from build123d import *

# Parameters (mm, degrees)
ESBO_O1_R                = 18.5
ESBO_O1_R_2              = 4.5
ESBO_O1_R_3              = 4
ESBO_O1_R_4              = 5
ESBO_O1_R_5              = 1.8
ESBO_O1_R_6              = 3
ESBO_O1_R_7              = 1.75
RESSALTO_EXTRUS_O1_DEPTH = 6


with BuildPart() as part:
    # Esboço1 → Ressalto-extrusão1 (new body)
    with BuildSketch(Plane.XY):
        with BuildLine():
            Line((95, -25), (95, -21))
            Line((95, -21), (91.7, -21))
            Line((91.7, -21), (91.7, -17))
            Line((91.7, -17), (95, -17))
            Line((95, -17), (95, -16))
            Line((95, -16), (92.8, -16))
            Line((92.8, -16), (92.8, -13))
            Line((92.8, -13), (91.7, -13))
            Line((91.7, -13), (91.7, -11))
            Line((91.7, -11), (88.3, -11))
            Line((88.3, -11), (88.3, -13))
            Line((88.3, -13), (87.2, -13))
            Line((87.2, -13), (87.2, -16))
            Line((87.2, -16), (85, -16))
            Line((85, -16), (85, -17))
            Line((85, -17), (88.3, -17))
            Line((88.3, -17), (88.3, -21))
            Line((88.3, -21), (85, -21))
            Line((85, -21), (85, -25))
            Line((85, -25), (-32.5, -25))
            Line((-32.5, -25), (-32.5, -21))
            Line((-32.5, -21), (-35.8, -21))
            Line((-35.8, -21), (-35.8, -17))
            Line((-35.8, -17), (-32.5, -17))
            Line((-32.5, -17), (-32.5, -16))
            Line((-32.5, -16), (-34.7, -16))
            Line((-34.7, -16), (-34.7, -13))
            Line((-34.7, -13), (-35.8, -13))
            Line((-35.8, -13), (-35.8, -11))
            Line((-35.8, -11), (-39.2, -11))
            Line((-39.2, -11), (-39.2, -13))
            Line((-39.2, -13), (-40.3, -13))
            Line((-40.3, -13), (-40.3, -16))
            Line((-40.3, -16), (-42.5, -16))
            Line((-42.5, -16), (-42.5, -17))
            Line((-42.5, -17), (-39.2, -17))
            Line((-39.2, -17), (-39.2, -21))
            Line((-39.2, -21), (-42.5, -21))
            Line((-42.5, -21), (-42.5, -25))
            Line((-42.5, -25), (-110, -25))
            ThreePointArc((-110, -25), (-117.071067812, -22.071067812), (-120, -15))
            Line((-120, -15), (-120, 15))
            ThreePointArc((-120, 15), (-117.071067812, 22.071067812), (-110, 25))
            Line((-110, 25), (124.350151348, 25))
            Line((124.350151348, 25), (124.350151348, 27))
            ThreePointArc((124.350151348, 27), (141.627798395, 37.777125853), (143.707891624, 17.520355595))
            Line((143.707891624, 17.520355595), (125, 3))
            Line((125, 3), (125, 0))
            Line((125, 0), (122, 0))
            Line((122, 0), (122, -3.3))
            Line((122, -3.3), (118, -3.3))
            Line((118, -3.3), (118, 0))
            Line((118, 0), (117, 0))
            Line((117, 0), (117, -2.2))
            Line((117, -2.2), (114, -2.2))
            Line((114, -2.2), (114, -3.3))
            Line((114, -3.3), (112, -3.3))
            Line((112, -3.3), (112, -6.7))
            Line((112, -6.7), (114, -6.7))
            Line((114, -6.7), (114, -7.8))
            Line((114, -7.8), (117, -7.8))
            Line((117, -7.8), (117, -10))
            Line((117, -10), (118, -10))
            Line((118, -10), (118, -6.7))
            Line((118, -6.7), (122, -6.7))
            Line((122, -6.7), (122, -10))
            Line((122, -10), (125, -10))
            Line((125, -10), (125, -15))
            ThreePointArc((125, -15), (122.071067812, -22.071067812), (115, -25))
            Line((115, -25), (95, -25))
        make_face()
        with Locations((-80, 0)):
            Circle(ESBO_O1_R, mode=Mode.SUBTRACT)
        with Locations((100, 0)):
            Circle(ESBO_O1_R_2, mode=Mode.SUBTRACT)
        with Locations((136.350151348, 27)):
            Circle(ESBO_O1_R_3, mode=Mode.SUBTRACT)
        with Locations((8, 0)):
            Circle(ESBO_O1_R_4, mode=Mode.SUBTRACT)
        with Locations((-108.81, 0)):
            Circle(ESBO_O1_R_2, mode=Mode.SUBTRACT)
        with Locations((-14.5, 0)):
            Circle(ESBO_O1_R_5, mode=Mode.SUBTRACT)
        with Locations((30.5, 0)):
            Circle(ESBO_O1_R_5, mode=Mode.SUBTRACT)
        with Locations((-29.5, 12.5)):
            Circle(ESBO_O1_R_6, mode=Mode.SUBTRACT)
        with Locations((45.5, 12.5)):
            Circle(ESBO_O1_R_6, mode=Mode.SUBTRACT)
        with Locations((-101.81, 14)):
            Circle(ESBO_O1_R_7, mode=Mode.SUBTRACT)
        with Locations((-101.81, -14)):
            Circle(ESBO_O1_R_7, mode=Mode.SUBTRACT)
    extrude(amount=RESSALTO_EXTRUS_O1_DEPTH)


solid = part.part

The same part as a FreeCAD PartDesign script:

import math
import FreeCAD as App
import Part
import Sketcher
from FreeCAD import Vector

doc = App.newDocument("Part")
params = doc.addObject("Spreadsheet::Sheet", "Params")
for row, (alias, value) in enumerate([
    ("sketch1_diameter", "9 mm"),
    ("sketch1_diameter2", "10 mm"),
    ("sketch1_diameter3", "37 mm"),
    ("sketch1_diameter4", "6 mm"),
    ("sketch1_diameter5", "8 mm"),
    ("pad1_length", "6 mm"),
], start=1):
    params.set(f"A{row}", alias)
    params.set(f"B{row}", "=" + value)
    params.setAlias(f"B{row}", alias)

body = doc.addObject("PartDesign::Body", "Body")

# Sketch on XY plane
sketch1 = body.newObject("Sketcher::SketchObject", "Sketch")
sketch1.AttachmentSupport = (doc.getObject("XY_Plane"), [""])
sketch1.MapMode = "FlatFace"
sketch1.addGeometry([
    Part.LineSegment(Vector(95, -21, 0), Vector(95, -25, 0)),  # 0
    Part.LineSegment(Vector(95, -25, 0), Vector(115, -25, 0)),  # 1
    Part.ArcOfCircle(Part.Circle(Vector(115, -15, 0), Vector(0, 0, 1), 10), math.radians(-90), math.radians(0)),  # 2
    Part.LineSegment(Vector(125, -15, 0), Vector(125, -10, 0)),  # 3
    Part.LineSegment(Vector(125, -10, 0), Vector(122, -10, 0)),  # 4
    Part.LineSegment(Vector(122, -10, 0), Vector(122, -6.7, 0)),  # 5
    Part.LineSegment(Vector(122, -6.7, 0), Vector(118, -6.7, 0)),  # 6
    Part.LineSegment(Vector(118, -6.7, 0), Vector(118, -10, 0)),  # 7
    Part.LineSegment(Vector(118, -10, 0), Vector(117, -10, 0)),  # 8
    Part.LineSegment(Vector(117, -10, 0), Vector(117, -7.8, 0)),  # 9
    Part.LineSegment(Vector(117, -7.8, 0), Vector(114, -7.8, 0)),  # 10
    Part.LineSegment(Vector(114, -7.8, 0), Vector(114, -6.7, 0)),  # 11
    Part.LineSegment(Vector(114, -6.7, 0), Vector(112, -6.7, 0)),  # 12
    Part.LineSegment(Vector(112, -6.7, 0), Vector(112, -3.3, 0)),  # 13
    Part.LineSegment(Vector(112, -3.3, 0), Vector(114, -3.3, 0)),  # 14
    Part.LineSegment(Vector(114, -3.3, 0), Vector(114, -2.2, 0)),  # 15
    Part.LineSegment(Vector(114, -2.2, 0), Vector(117, -2.2, 0)),  # 16
    Part.LineSegment(Vector(117, -2.2, 0), Vector(117, 0, 0)),  # 17
    Part.LineSegment(Vector(117, 0, 0), Vector(118, 0, 0)),  # 18
    Part.LineSegment(Vector(118, 0, 0), Vector(118, -3.3, 0)),  # 19
    Part.LineSegment(Vector(118, -3.3, 0), Vector(122, -3.3, 0)),  # 20
    Part.LineSegment(Vector(122, -3.3, 0), Vector(122, 0, 0)),  # 21
    Part.LineSegment(Vector(122, 0, 0), Vector(125, 0, 0)),  # 22
    Part.LineSegment(Vector(125, 0, 0), Vector(125, 3, 0)),  # 23
    Part.LineSegment(Vector(125, 3, 0), Vector(143.7, 17.5, 0)),  # 24
    Part.ArcOfCircle(Part.Circle(Vector(136.4, 27, 0), Vector(0, 0, 1), 12), math.radians(-52), math.radians(180)),  # 25
    Part.LineSegment(Vector(124.4, 27, 0), Vector(124.4, 25, 0)),  # 26
    Part.LineSegment(Vector(124.4, 25, 0), Vector(-110, 25, 0)),  # 27
    Part.ArcOfCircle(Part.Circle(Vector(-110, 15, 0), Vector(0, 0, 1), 10), math.radians(90), math.radians(180)),  # 28
    Part.LineSegment(Vector(-120, 15, 0), Vector(-120, -15, 0)),  # 29
    Part.ArcOfCircle(Part.Circle(Vector(-110, -15, 0), Vector(0, 0, 1), 10), math.radians(180), math.radians(270)),  # 30
    Part.LineSegment(Vector(-110, -25, 0), Vector(-42.5, -25, 0)),  # 31
    Part.LineSegment(Vector(-42.5, -25, 0), Vector(-42.5, -21, 0)),  # 32
    Part.LineSegment(Vector(-42.5, -21, 0), Vector(-39.2, -21, 0)),  # 33
    Part.LineSegment(Vector(-39.2, -21, 0), Vector(-39.2, -17, 0)),  # 34
    Part.LineSegment(Vector(-39.2, -17, 0), Vector(-42.5, -17, 0)),  # 35
    Part.LineSegment(Vector(-42.5, -17, 0), Vector(-42.5, -16, 0)),  # 36
    Part.LineSegment(Vector(-42.5, -16, 0), Vector(-40.3, -16, 0)),  # 37
    Part.LineSegment(Vector(-40.3, -16, 0), Vector(-40.3, -13, 0)),  # 38
    Part.LineSegment(Vector(-40.3, -13, 0), Vector(-39.2, -13, 0)),  # 39
    Part.LineSegment(Vector(-39.2, -13, 0), Vector(-39.2, -11, 0)),  # 40
    Part.LineSegment(Vector(-39.2, -11, 0), Vector(-35.8, -11, 0)),  # 41
    Part.LineSegment(Vector(-35.8, -11, 0), Vector(-35.8, -13, 0)),  # 42
    Part.LineSegment(Vector(-35.8, -13, 0), Vector(-34.7, -13, 0)),  # 43
    Part.LineSegment(Vector(-34.7, -13, 0), Vector(-34.7, -16, 0)),  # 44
    Part.LineSegment(Vector(-34.7, -16, 0), Vector(-32.5, -16, 0)),  # 45
    Part.LineSegment(Vector(-32.5, -16, 0), Vector(-32.5, -17, 0)),  # 46
    Part.LineSegment(Vector(-32.5, -17, 0), Vector(-35.8, -17, 0)),  # 47
    Part.LineSegment(Vector(-35.8, -17, 0), Vector(-35.8, -21, 0)),  # 48
    Part.LineSegment(Vector(-35.8, -21, 0), Vector(-32.5, -21, 0)),  # 49
    Part.LineSegment(Vector(-32.5, -21, 0), Vector(-32.5, -25, 0)),  # 50
    Part.LineSegment(Vector(-32.5, -25, 0), Vector(85, -25, 0)),  # 51
    Part.LineSegment(Vector(85, -25, 0), Vector(85, -21, 0)),  # 52
    Part.LineSegment(Vector(85, -21, 0), Vector(88.3, -21, 0)),  # 53
    Part.LineSegment(Vector(88.3, -21, 0), Vector(88.3, -17, 0)),  # 54
    Part.LineSegment(Vector(88.3, -17, 0), Vector(85, -17, 0)),  # 55
    Part.LineSegment(Vector(85, -17, 0), Vector(85, -16, 0)),  # 56
    Part.LineSegment(Vector(85, -16, 0), Vector(87.2, -16, 0)),  # 57
    Part.LineSegment(Vector(87.2, -16, 0), Vector(87.2, -13, 0)),  # 58
    Part.LineSegment(Vector(87.2, -13, 0), Vector(88.3, -13, 0)),  # 59
    Part.LineSegment(Vector(88.3, -13, 0), Vector(88.3, -11, 0)),  # 60
    Part.LineSegment(Vector(88.3, -11, 0), Vector(91.7, -11, 0)),  # 61
    Part.LineSegment(Vector(91.7, -11, 0), Vector(91.7, -13, 0)),  # 62
    Part.LineSegment(Vector(91.7, -13, 0), Vector(92.8, -13, 0)),  # 63
    Part.LineSegment(Vector(92.8, -13, 0), Vector(92.8, -16, 0)),  # 64
    Part.LineSegment(Vector(92.8, -16, 0), Vector(95, -16, 0)),  # 65
    Part.LineSegment(Vector(95, -16, 0), Vector(95, -17, 0)),  # 66
    Part.LineSegment(Vector(95, -17, 0), Vector(91.7, -17, 0)),  # 67
    Part.LineSegment(Vector(91.7, -17, 0), Vector(91.7, -21, 0)),  # 68
    Part.LineSegment(Vector(91.7, -21, 0), Vector(95, -21, 0)),  # 69
    Part.Circle(Vector(100, 0, 0), Vector(0, 0, 1), 4.5),  # 70
    Part.Circle(Vector(30.5, 0, 0), Vector(0, 0, 1), 1.8),  # 71
    Part.Circle(Vector(-101.8, -14, 0), Vector(0, 0, 1), 1.8),  # 72
    Part.Circle(Vector(8, 0, 0), Vector(0, 0, 1), 5),  # 73
    Part.Circle(Vector(-14.5, 0, 0), Vector(0, 0, 1), 1.8),  # 74
    Part.Circle(Vector(-80, 0, 0), Vector(0, 0, 1), 18.5),  # 75
    Part.Circle(Vector(-108.8, 0, 0), Vector(0, 0, 1), 4.5),  # 76
    Part.Circle(Vector(45.5, 12.5, 0), Vector(0, 0, 1), 3),  # 77
    Part.Circle(Vector(136.4, 27, 0), Vector(0, 0, 1), 4),  # 78
    Part.Circle(Vector(-29.5, 12.5, 0), Vector(0, 0, 1), 3),  # 79
    Part.Circle(Vector(-101.8, 14, 0), Vector(0, 0, 1), 1.8),  # 80
], False)
sketch1.addConstraint([
    Sketcher.Constraint("Coincident", 0, 2, 1, 1),
    Sketcher.Constraint("Tangent", 1, 2, 2, 1),
    Sketcher.Constraint("Tangent", 2, 2, 3, 1),
    Sketcher.Constraint("Coincident", 3, 2, 4, 1),
    Sketcher.Constraint("Coincident", 4, 2, 5, 1),
    Sketcher.Constraint("Coincident", 5, 2, 6, 1),
    Sketcher.Constraint("Coincident", 6, 2, 7, 1),
    Sketcher.Constraint("Coincident", 7, 2, 8, 1),
    Sketcher.Constraint("Coincident", 8, 2, 9, 1),
    Sketcher.Constraint("Coincident", 9, 2, 10, 1),
    Sketcher.Constraint("Coincident", 10, 2, 11, 1),
    Sketcher.Constraint("Coincident", 11, 2, 12, 1),
    Sketcher.Constraint("Coincident", 12, 2, 13, 1),
    Sketcher.Constraint("Coincident", 13, 2, 14, 1),
    Sketcher.Constraint("Coincident", 14, 2, 15, 1),
    Sketcher.Constraint("Coincident", 15, 2, 16, 1),
    Sketcher.Constraint("Coincident", 16, 2, 17, 1),
    Sketcher.Constraint("Coincident", 17, 2, 18, 1),
    Sketcher.Constraint("Coincident", 18, 2, 19, 1),
    Sketcher.Constraint("Coincident", 19, 2, 20, 1),
    Sketcher.Constraint("Coincident", 20, 2, 21, 1),
    Sketcher.Constraint("Coincident", 21, 2, 22, 1),
    Sketcher.Constraint("Coincident", 22, 2, 23, 1),
    Sketcher.Constraint("Coincident", 23, 2, 24, 1),
    Sketcher.Constraint("Tangent", 24, 2, 25, 1),
    Sketcher.Constraint("Tangent", 25, 2, 26, 1),
    Sketcher.Constraint("Coincident", 26, 2, 27, 1),
    Sketcher.Constraint("Tangent", 27, 2, 28, 1),
    Sketcher.Constraint("Tangent", 28, 2, 29, 1),
    Sketcher.Constraint("Tangent", 29, 2, 30, 1),
    Sketcher.Constraint("Tangent", 30, 2, 31, 1),
    Sketcher.Constraint("Coincident", 31, 2, 32, 1),
    Sketcher.Constraint("Coincident", 32, 2, 33, 1),
    Sketcher.Constraint("Coincident", 33, 2, 34, 1),
    Sketcher.Constraint("Coincident", 34, 2, 35, 1),
    Sketcher.Constraint("Coincident", 35, 2, 36, 1),
    Sketcher.Constraint("Coincident", 36, 2, 37, 1),
    Sketcher.Constraint("Coincident", 37, 2, 38, 1),
    Sketcher.Constraint("Coincident", 38, 2, 39, 1),
    Sketcher.Constraint("Coincident", 39, 2, 40, 1),
    Sketcher.Constraint("Coincident", 40, 2, 41, 1),
    Sketcher.Constraint("Coincident", 41, 2, 42, 1),
    Sketcher.Constraint("Coincident", 42, 2, 43, 1),
    Sketcher.Constraint("Coincident", 43, 2, 44, 1),
    Sketcher.Constraint("Coincident", 44, 2, 45, 1),
    Sketcher.Constraint("Coincident", 45, 2, 46, 1),
    Sketcher.Constraint("Coincident", 46, 2, 47, 1),
    Sketcher.Constraint("Coincident", 47, 2, 48, 1),
    Sketcher.Constraint("Coincident", 48, 2, 49, 1),
    Sketcher.Constraint("Coincident", 49, 2, 50, 1),
    Sketcher.Constraint("Coincident", 50, 2, 51, 1),
    Sketcher.Constraint("Coincident", 51, 2, 52, 1),
    Sketcher.Constraint("Coincident", 52, 2, 53, 1),
    Sketcher.Constraint("Coincident", 53, 2, 54, 1),
    Sketcher.Constraint("Coincident", 54, 2, 55, 1),
    Sketcher.Constraint("Coincident", 55, 2, 56, 1),
    Sketcher.Constraint("Coincident", 56, 2, 57, 1),
    Sketcher.Constraint("Coincident", 57, 2, 58, 1),
    Sketcher.Constraint("Coincident", 58, 2, 59, 1),
    Sketcher.Constraint("Coincident", 59, 2, 60, 1),
    Sketcher.Constraint("Coincident", 60, 2, 61, 1),
    Sketcher.Constraint("Coincident", 61, 2, 62, 1),
    Sketcher.Constraint("Coincident", 62, 2, 63, 1),
    Sketcher.Constraint("Coincident", 63, 2, 64, 1),
    Sketcher.Constraint("Coincident", 64, 2, 65, 1),
    Sketcher.Constraint("Coincident", 65, 2, 66, 1),
    Sketcher.Constraint("Coincident", 66, 2, 67, 1),
    Sketcher.Constraint("Coincident", 67, 2, 68, 1),
    Sketcher.Constraint("Coincident", 68, 2, 69, 1),
    Sketcher.Constraint("Coincident", 69, 2, 0, 1),
    Sketcher.Constraint("Vertical", 0),
    Sketcher.Constraint("Horizontal", 1),
    Sketcher.Constraint("Vertical", 3),
    Sketcher.Constraint("Horizontal", 4),
    Sketcher.Constraint("Vertical", 5),
    Sketcher.Constraint("Horizontal", 6),
    Sketcher.Constraint("Vertical", 7),
    Sketcher.Constraint("Horizontal", 8),
    Sketcher.Constraint("Vertical", 9),
    Sketcher.Constraint("Horizontal", 10),
    Sketcher.Constraint("Vertical", 11),
    Sketcher.Constraint("Horizontal", 12),
    Sketcher.Constraint("Vertical", 13),
    Sketcher.Constraint("Horizontal", 14),
    Sketcher.Constraint("Vertical", 15),
    Sketcher.Constraint("Horizontal", 16),
    Sketcher.Constraint("Vertical", 17),
    Sketcher.Constraint("Horizontal", 18),
    Sketcher.Constraint("Vertical", 19),
    Sketcher.Constraint("Horizontal", 20),
    Sketcher.Constraint("Vertical", 21),
    Sketcher.Constraint("Horizontal", 22),
    Sketcher.Constraint("Vertical", 23),
    Sketcher.Constraint("Vertical", 26),
    Sketcher.Constraint("Horizontal", 27),
    Sketcher.Constraint("Vertical", 29),
    Sketcher.Constraint("Horizontal", 31),
    Sketcher.Constraint("Vertical", 32),
    Sketcher.Constraint("Horizontal", 33),
    Sketcher.Constraint("Vertical", 34),
    Sketcher.Constraint("Horizontal", 35),
    Sketcher.Constraint("Vertical", 36),
    Sketcher.Constraint("Horizontal", 37),
    Sketcher.Constraint("Vertical", 38),
    Sketcher.Constraint("Horizontal", 39),
    Sketcher.Constraint("Vertical", 40),
    Sketcher.Constraint("Horizontal", 41),
    Sketcher.Constraint("Vertical", 42),
    Sketcher.Constraint("Horizontal", 43),
    Sketcher.Constraint("Vertical", 44),
    Sketcher.Constraint("Horizontal", 45),
    Sketcher.Constraint("Vertical", 46),
    Sketcher.Constraint("Horizontal", 47),
    Sketcher.Constraint("Vertical", 48),
    Sketcher.Constraint("Horizontal", 49),
    Sketcher.Constraint("Vertical", 50),
    Sketcher.Constraint("Horizontal", 51),
    Sketcher.Constraint("Vertical", 52),
    Sketcher.Constraint("Horizontal", 53),
    Sketcher.Constraint("Vertical", 54),
    Sketcher.Constraint("Horizontal", 55),
    Sketcher.Constraint("Vertical", 56),
    Sketcher.Constraint("Horizontal", 57),
    Sketcher.Constraint("Vertical", 58),
    Sketcher.Constraint("Horizontal", 59),
    Sketcher.Constraint("Vertical", 60),
    Sketcher.Constraint("Horizontal", 61),
    Sketcher.Constraint("Vertical", 62),
    Sketcher.Constraint("Horizontal", 63),
    Sketcher.Constraint("Vertical", 64),
    Sketcher.Constraint("Horizontal", 65),
    Sketcher.Constraint("Vertical", 66),
    Sketcher.Constraint("Horizontal", 67),
    Sketcher.Constraint("Vertical", 68),
    Sketcher.Constraint("Horizontal", 69),
    Sketcher.Constraint("Coincident", 78, 3, 25, 3),
    Sketcher.Constraint("Equal", 2, 28),
    Sketcher.Constraint("Equal", 28, 30),
    Sketcher.Constraint("Equal", 71, 74),
    Sketcher.Constraint("Equal", 70, 76),
    Sketcher.Constraint("Equal", 77, 79),
    Sketcher.Constraint("Equal", 72, 80),
    Sketcher.Constraint("Symmetric", 72, 3, 80, 3, -1),
    Sketcher.Constraint("PointOnObject", 70, 3, -1),
    Sketcher.Constraint("PointOnObject", 71, 3, -1),
    Sketcher.Constraint("PointOnObject", 73, 3, -1),
    Sketcher.Constraint("PointOnObject", 74, 3, -1),
    Sketcher.Constraint("PointOnObject", 75, 3, -1),
    Sketcher.Constraint("PointOnObject", 76, 3, -1),
    Sketcher.Constraint("PointOnObject", 17, 2, -1),
    Sketcher.Constraint("PointOnObject", 21, 2, -1),
    Sketcher.Constraint("Horizontal", 2, 3, 30, 3),
    Sketcher.Constraint("Horizontal", 77, 3, 79, 3),
    Sketcher.Constraint("Horizontal", 4, 2, 7, 2),
    Sketcher.Constraint("Horizontal", 6, 2, 11, 2),
    Sketcher.Constraint("Horizontal", 14, 2, 19, 2),
    Sketcher.Constraint("Horizontal", 39, 2, 42, 2),
    Sketcher.Constraint("Horizontal", 37, 2, 44, 2),
    Sketcher.Constraint("Horizontal", 35, 2, 46, 2),
    Sketcher.Constraint("Horizontal", 33, 2, 48, 2),
    Sketcher.Constraint("Horizontal", 31, 2, 50, 2),
    Sketcher.Constraint("Horizontal", 49, 2, 52, 2),
    Sketcher.Constraint("Horizontal", 47, 2, 54, 2),
    Sketcher.Constraint("Horizontal", 45, 2, 56, 2),
    Sketcher.Constraint("Horizontal", 43, 2, 58, 2),
    Sketcher.Constraint("Horizontal", 41, 2, 60, 2),
    Sketcher.Constraint("Horizontal", 59, 2, 62, 2),
    Sketcher.Constraint("Horizontal", 57, 2, 64, 2),
    Sketcher.Constraint("Horizontal", 55, 2, 66, 2),
    Sketcher.Constraint("Horizontal", 53, 2, 68, 2),
    Sketcher.Constraint("Vertical", 11, 2, 14, 2),
    Sketcher.Constraint("Vertical", 9, 2, 16, 2),
    Sketcher.Constraint("Vertical", 7, 2, 18, 2),
    Sketcher.Constraint("Vertical", 5, 2, 20, 2),
    Sketcher.Constraint("Vertical", 3, 2, 22, 2),
    Sketcher.Constraint("Vertical", 32, 2, 35, 2),
    Sketcher.Constraint("Vertical", 34, 2, 39, 2),
    Sketcher.Constraint("Vertical", 42, 2, 47, 2),
    Sketcher.Constraint("Vertical", 46, 2, 49, 2),
    Sketcher.Constraint("Vertical", 52, 2, 55, 2),
    Sketcher.Constraint("Vertical", 54, 2, 59, 2),
    Sketcher.Constraint("Vertical", 0, 2, 65, 2),
    Sketcher.Constraint("Vertical", 62, 2, 67, 2),
    Sketcher.Constraint("Equal", 4, 10),
    Sketcher.Constraint("Equal", 39, 43),
    Sketcher.Constraint("Equal", 37, 45),
    Sketcher.Constraint("Equal", 49, 53),
    Sketcher.Constraint("Equal", 45, 57),
    Sketcher.Constraint("Equal", 41, 61),
    Sketcher.Constraint("Equal", 59, 63),
    Sketcher.Constraint("Equal", 57, 65),
    Sketcher.Constraint("Equal", 20, 0),
    Sketcher.Constraint("Equal", 69, 5),
    Sketcher.Constraint("Equal", 65, 9),
    Sketcher.Constraint("Equal", 61, 13),
    Sketcher.Constraint("Equal", 11, 15),
    Sketcher.Constraint("Equal", 9, 17),
    Sketcher.Constraint("Equal", 22, 23),
    Sketcher.Constraint("Equal", 14, 26),
    Sketcher.Constraint("Equal", 32, 34),
    Sketcher.Constraint("Equal", 18, 36),
    Sketcher.Constraint("Equal", 23, 38),
    Sketcher.Constraint("Equal", 26, 40),
    Sketcher.Constraint("Diameter", 70, 9.0),
    Sketcher.Constraint("Diameter", 73, 10.0),
    Sketcher.Constraint("Diameter", 75, 37.0),
    Sketcher.Constraint("Diameter", 77, 6.0),
    Sketcher.Constraint("Diameter", 78, 8.0),
    Sketcher.Constraint("Radius", 2, 10.0),
    Sketcher.Constraint("Radius", 25, 12.0),
    Sketcher.Constraint("Diameter", 71, 3.6),
    Sketcher.Constraint("Diameter", 72, 3.5),
    Sketcher.Constraint("DistanceX", 1, 1, 1, 2, 20.0),
    Sketcher.Constraint("DistanceX", 4, 2, 4, 1, 3.0),
    Sketcher.Constraint("DistanceX", 6, 2, 6, 1, 4.0),
    Sketcher.Constraint("DistanceX", 8, 2, 8, 1, 1.0),
    Sketcher.Constraint("DistanceX", 12, 2, 12, 1, 2.0),
    Sketcher.Constraint("DistanceY", 3, 1, 3, 2, 5.0),
    Sketcher.Constraint("DistanceY", 29, 2, 29, 1, 30.0),
    Sketcher.Constraint("DistanceX", 31, 1, 31, 2, 67.5),
    Sketcher.Constraint("DistanceX", 33, 1, 33, 2, 3.3),
    Sketcher.Constraint("DistanceX", 37, 1, 37, 2, 2.2),
    Sketcher.Constraint("DistanceX", 41, 1, 41, 2, 3.4),
    Sketcher.Constraint("DistanceX", 51, 1, 51, 2, 117.5),
    Sketcher.Constraint("DistanceX", -1, 1, 2, 3, 115.0),
    Sketcher.Constraint("DistanceX", -1, 1, 70, 3, 100.0),
    Sketcher.Constraint("DistanceY", 72, 3, -1, 1, 14.0),
    Sketcher.Constraint("DistanceX", -1, 1, 73, 3, 8.0),
    Sketcher.Constraint("DistanceX", 75, 3, -1, 1, 80.0),
    Sketcher.Constraint("DistanceX", -1, 1, 71, 3, 30.5),
    Sketcher.Constraint("DistanceX", 74, 3, -1, 1, 14.5),
    Sketcher.Constraint("DistanceX", -1, 1, 77, 3, 45.5),
    Sketcher.Constraint("DistanceY", -1, 1, 77, 3, 12.5),
    Sketcher.Constraint("DistanceX", 79, 3, -1, 1, 29.5),
    Sketcher.Constraint("DistanceX", 72, 3, -1, 1, 101.81),
    Sketcher.Constraint("DistanceX", 76, 3, -1, 1, 108.81),
    Sketcher.Constraint("DistanceX", 27, 2, 27, 1, 234.350151),
])
sketch1.setExpression("Constraints[203]", "Params.sketch1_diameter")
sketch1.setExpression("Constraints[204]", "Params.sketch1_diameter2")
sketch1.setExpression("Constraints[205]", "Params.sketch1_diameter3")
sketch1.setExpression("Constraints[206]", "Params.sketch1_diameter4")
sketch1.setExpression("Constraints[207]", "Params.sketch1_diameter5")
pad1 = body.newObject("PartDesign::Pad", "Pad")
pad1.Profile = sketch1
pad1.setExpression("Length", "Params.pad1_length")

doc.recompute()
